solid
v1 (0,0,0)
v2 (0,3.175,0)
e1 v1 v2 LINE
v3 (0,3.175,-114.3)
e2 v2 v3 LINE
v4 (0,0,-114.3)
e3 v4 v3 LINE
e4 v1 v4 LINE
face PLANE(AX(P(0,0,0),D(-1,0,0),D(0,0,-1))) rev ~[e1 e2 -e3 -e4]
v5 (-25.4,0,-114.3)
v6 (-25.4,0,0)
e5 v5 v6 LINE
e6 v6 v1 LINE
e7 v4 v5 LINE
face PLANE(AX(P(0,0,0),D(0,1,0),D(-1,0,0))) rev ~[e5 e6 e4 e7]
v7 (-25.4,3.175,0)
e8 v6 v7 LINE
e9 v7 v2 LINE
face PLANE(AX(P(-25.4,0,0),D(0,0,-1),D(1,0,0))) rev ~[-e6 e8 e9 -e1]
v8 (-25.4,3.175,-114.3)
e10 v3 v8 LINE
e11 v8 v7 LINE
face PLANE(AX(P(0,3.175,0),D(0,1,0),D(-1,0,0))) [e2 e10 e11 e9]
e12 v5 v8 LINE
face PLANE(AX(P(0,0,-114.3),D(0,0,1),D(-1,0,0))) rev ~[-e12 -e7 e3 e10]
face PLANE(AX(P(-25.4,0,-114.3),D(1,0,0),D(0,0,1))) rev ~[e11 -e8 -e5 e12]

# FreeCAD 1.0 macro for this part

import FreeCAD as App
import Part
import Sketcher
from FreeCAD import Vector
Q = App.Units.Quantity

doc = App.newDocument("Part")
params = doc.addObject("Spreadsheet::Sheet", "Params")
for row, (alias, value) in enumerate([
    ("sketch1_width", "1 in"),
    ("sketch1_height", "4.5 in"),
    ("pad1_length", "0.125 in"),
], start=1):
    params.set(f"A{row}", alias)
    params.set(f"B{row}", "=" + value)
    params.setAlias(f"B{row}", alias)

body = doc.addObject("PartDesign::Body", "Body")

sketch1 = body.newObject("Sketcher::SketchObject", "Sketch")
sketch1.AttachmentSupport = (doc.getObject("XZ_Plane"), [""])
sketch1.MapMode = "FlatFace"
sketch1.addGeometry(Part.LineSegment(Vector(-25, 0, 0), Vector(0, 0, 0)), False)
sketch1.addGeometry(Part.LineSegment(Vector(0, 0, 0), Vector(0, -114, 0)), False)
sketch1.addGeometry(Part.LineSegment(Vector(0, -114, 0), Vector(-25, -114, 0)), False)
sketch1.addGeometry(Part.LineSegment(Vector(-25, -114, 0), Vector(-25, 0, 0)), False)
sketch1.addConstraint(Sketcher.Constraint("Coincident", 0, 2, 1, 1))
sketch1.addConstraint(Sketcher.Constraint("Coincident", 1, 2, 2, 1))
sketch1.addConstraint(Sketcher.Constraint("Coincident", 2, 2, 3, 1))
sketch1.addConstraint(Sketcher.Constraint("Coincident", 3, 2, 0, 1))
sketch1.addConstraint(Sketcher.Constraint("Horizontal", 0))
sketch1.addConstraint(Sketcher.Constraint("Vertical", 1))
sketch1.addConstraint(Sketcher.Constraint("Horizontal", 2))
sketch1.addConstraint(Sketcher.Constraint("Vertical", 3))
sketch1.addConstraint(Sketcher.Constraint("Coincident", 0, 2, -1, 1))
sketch1.addConstraint(Sketcher.Constraint("DistanceX", 0, 1, 0, 2, Q("1 in")))
sketch1.addConstraint(Sketcher.Constraint("DistanceY", 1, 2, 1, 1, Q("4.5 in")))
sketch1.setExpression("Constraints[9]", "Params.sketch1_width")
sketch1.setExpression("Constraints[10]", "Params.sketch1_height")
pad1 = body.newObject("PartDesign::Pad", "Pad")
pad1.Profile = sketch1
pad1.setExpression("Length", "Params.pad1_length")
pad1.Reversed = True

doc.recompute()
